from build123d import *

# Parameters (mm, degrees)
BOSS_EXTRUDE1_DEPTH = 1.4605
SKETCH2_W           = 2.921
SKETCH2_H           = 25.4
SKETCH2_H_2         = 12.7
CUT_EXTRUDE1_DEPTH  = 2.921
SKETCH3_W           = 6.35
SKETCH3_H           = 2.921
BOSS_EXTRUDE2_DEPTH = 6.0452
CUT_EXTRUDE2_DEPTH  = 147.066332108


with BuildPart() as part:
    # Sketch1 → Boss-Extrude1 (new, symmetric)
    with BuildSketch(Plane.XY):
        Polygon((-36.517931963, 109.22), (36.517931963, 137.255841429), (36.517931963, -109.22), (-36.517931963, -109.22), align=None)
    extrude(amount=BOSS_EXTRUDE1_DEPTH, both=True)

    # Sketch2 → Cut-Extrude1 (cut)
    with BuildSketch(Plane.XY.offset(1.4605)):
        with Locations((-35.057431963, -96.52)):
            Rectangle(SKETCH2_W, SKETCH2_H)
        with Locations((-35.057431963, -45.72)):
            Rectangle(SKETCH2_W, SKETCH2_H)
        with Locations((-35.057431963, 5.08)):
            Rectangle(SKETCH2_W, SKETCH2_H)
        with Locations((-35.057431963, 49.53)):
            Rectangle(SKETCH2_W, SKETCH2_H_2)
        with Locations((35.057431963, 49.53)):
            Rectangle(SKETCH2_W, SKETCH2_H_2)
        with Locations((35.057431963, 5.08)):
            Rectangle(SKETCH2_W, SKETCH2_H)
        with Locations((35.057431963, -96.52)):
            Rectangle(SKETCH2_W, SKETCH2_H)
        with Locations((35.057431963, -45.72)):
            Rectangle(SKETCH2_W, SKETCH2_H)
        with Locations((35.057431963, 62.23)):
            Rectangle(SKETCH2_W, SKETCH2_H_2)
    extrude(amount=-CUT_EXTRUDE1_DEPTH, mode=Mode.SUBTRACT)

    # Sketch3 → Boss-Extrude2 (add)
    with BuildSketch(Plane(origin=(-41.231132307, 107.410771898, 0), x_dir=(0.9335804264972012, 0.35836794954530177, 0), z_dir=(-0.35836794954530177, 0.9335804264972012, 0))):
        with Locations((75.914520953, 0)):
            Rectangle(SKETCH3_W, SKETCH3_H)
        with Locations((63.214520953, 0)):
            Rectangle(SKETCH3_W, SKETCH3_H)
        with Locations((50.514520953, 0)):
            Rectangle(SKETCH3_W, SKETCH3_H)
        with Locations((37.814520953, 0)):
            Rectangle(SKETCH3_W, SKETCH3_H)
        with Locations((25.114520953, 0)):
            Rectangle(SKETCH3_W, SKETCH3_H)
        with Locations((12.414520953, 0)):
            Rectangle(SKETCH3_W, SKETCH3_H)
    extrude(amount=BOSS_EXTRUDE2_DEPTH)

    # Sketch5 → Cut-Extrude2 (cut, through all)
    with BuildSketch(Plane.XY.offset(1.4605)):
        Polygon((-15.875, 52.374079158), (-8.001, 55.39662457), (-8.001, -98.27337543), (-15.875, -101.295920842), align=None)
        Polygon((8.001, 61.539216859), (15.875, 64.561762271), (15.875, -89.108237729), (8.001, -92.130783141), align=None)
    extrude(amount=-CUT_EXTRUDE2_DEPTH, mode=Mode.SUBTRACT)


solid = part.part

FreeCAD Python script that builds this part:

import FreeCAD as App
import Part
import Sketcher

V = App.Vector
Q = App.Units.Quantity


def add_polygon(sketch, points):
    """Adds a closed chain of lines whose ends are joined by coincident constraints."""
    first, n = sketch.GeometryCount, len(points)
    for a, b in zip(points, points[1:] + points[:1]):
        sketch.addGeometry(Part.LineSegment(App.Vector(*a, 0), App.Vector(*b, 0)), False)
    for i in range(n):
        sketch.addConstraint(Sketcher.Constraint("Coincident", first + i, 2, first + (i + 1) % n, 1))

doc = App.newDocument("Part")
body = doc.addObject("PartDesign::Body", "Body")

# Sketch on XY plane
sketch1 = body.newObject("Sketcher::SketchObject", "Sketch")
sketch1.AttachmentSupport = (doc.getObject("XY_Plane"), [""])
sketch1.MapMode = "FlatFace"
add_polygon(sketch1, [(37, 137), (-37, 109), (-37, -109), (37, -109)])  # lines 0-3
sketch1.addConstraint(Sketcher.Constraint("Vertical", 1))
sketch1.addConstraint(Sketcher.Constraint("Horizontal", 2))
sketch1.addConstraint(Sketcher.Constraint("Vertical", 3))
sketch1.addConstraint(Sketcher.Constraint("Symmetric", 0, 2, 2, 2, -1, 1))
sketch1.addConstraint(Sketcher.Constraint("DistanceY", 1, 2, 1, 1, Q("8.6 in")))
sketch1.addConstraint(Sketcher.Constraint("Angle", 0, Q("-159 deg")))
sketch1.addConstraint(Sketcher.Constraint("Distance", 0, Q("3.08 in")))
pad1 = body.newObject("PartDesign::Pad", "Pad")
pad1.Profile = sketch1
pad1.Length = Q("0.115 in")
pad1.Midplane = True

# Sketch on XY plane
sketch2 = body.newObject("Sketcher::SketchObject", "Sketch001")
sketch2.AttachmentSupport = (doc.getObject("XY_Plane"), [""])
sketch2.MapMode = "FlatFace"
sketch2.AttachmentOffset = App.Placement(V(0, 0, 0.0575 * 25.4), App.Rotation())
add_polygon(sketch2, [(-36.5, -83.8), (-36.5, -109.2), (-33.6, -109.2), (-33.6, -83.8)])  # lines 0-3
add_polygon(sketch2, [(-36.5, -33), (-36.5, -58.4), (-33.6, -58.4), (-33.6, -33)])  # lines 4-7
add_polygon(sketch2, [(-36.5, 17.8), (-36.5, -7.6), (-33.6, -7.6), (-33.6, 17.8)])  # lines 8-11
add_polygon(sketch2, [(-36.5, 55.9), (-36.5, 43.2), (-33.6, 43.2), (-33.6, 55.9)])  # lines 12-15
add_polygon(sketch2, [(33.6, 43.2), (36.5, 43.2), (36.5, 68.6), (33.6, 68.6)])  # lines 16-19
add_polygon(sketch2, [(33.6, 17.8), (33.6, -7.6), (36.5, -7.6), (36.5, 17.8)])  # lines 20-23
add_polygon(sketch2, [(33.6, -83.8), (33.6, -109.2), (36.5, -109.2), (36.5, -83.8)])  # lines 24-27
add_polygon(sketch2, [(33.6, -33), (33.6, -58.4), (36.5, -58.4), (36.5, -33)])  # lines 28-31
sketch2.addConstraint(Sketcher.Constraint("Vertical", 0))
sketch2.addConstraint(Sketcher.Constraint("Horizontal", 1))
sketch2.addConstraint(Sketcher.Constraint("Vertical", 2))
sketch2.addConstraint(Sketcher.Constraint("Horizontal", 3))
sketch2.addConstraint(Sketcher.Constraint("Vertical", 4))
sketch2.addConstraint(Sketcher.Constraint("Horizontal", 5))
sketch2.addConstraint(Sketcher.Constraint("Vertical", 6))
sketch2.addConstraint(Sketcher.Constraint("Horizontal", 7))
sketch2.addConstraint(Sketcher.Constraint("Vertical", 8))
sketch2.addConstraint(Sketcher.Constraint("Horizontal", 9))
sketch2.addConstraint(Sketcher.Constraint("Vertical", 10))
sketch2.addConstraint(Sketcher.Constraint("Horizontal", 11))
sketch2.addConstraint(Sketcher.Constraint("Vertical", 12))
sketch2.addConstraint(Sketcher.Constraint("Horizontal", 13))
sketch2.addConstraint(Sketcher.Constraint("Vertical", 14))
sketch2.addConstraint(Sketcher.Constraint("Horizontal", 15))
sketch2.addConstraint(Sketcher.Constraint("Horizontal", 16))
sketch2.addConstraint(Sketcher.Constraint("Vertical", 17))
sketch2.addConstraint(Sketcher.Constraint("Horizontal", 18))
sketch2.addConstraint(Sketcher.Constraint("Vertical", 19))
sketch2.addConstraint(Sketcher.Constraint("Vertical", 20))
sketch2.addConstraint(Sketcher.Constraint("Horizontal", 21))
sketch2.addConstraint(Sketcher.Constraint("Vertical", 22))
sketch2.addConstraint(Sketcher.Constraint("Horizontal", 23))
sketch2.addConstraint(Sketcher.Constraint("Vertical", 24))
sketch2.addConstraint(Sketcher.Constraint("Horizontal", 25))
sketch2.addConstraint(Sketcher.Constraint("Vertical", 26))
sketch2.addConstraint(Sketcher.Constraint("Horizontal", 27))
sketch2.addConstraint(Sketcher.Constraint("Vertical", 28))
sketch2.addConstraint(Sketcher.Constraint("Horizontal", 29))
sketch2.addConstraint(Sketcher.Constraint("Vertical", 30))
sketch2.addConstraint(Sketcher.Constraint("Horizontal", 31))
sketch2.addConstraint(Sketcher.Constraint("Symmetric", 12, 2, 16, 2, -2))
sketch2.addConstraint(Sketcher.Constraint("Symmetric", 9, 2, 20, 2, -2))
sketch2.addConstraint(Sketcher.Constraint("Symmetric", 11, 2, 22, 2, -2))
sketch2.addConstraint(Sketcher.Constraint("Symmetric", 1, 2, 24, 2, -2))
sketch2.addConstraint(Sketcher.Constraint("Symmetric", 3, 2, 26, 2, -2))
sketch2.addConstraint(Sketcher.Constraint("Symmetric", 5, 2, 28, 2, -2))
sketch2.addConstraint(Sketcher.Constraint("Symmetric", 7, 2, 30, 2, -2))
sketch2.addConstraint(Sketcher.Constraint("Vertical", 3, 2, 4, 2))
sketch2.addConstraint(Sketcher.Constraint("Vertical", 2, 2, 5, 2))
sketch2.addConstraint(Sketcher.Constraint("Vertical", 7, 2, 8, 2))
sketch2.addConstraint(Sketcher.Constraint("Vertical", 6, 2, 9, 2))
sketch2.addConstraint(Sketcher.Constraint("Vertical", 11, 2, 12, 2))
sketch2.addConstraint(Sketcher.Constraint("Vertical", 10, 2, 13, 2))
sketch2.addConstraint(Sketcher.Constraint("Vertical", 19, 2, 20, 2))
sketch2.addConstraint(Sketcher.Constraint("Equal", 2, 4))
sketch2.addConstraint(Sketcher.Constraint("Equal", 6, 8))
sketch2.addConstraint(Sketcher.Constraint("Equal", 10, 17))
sketch2.addConstraint(Sketcher.Constraint("DistanceY", 0, 2, 0, 1, Q("1 in")))
sketch2.addConstraint(Sketcher.Constraint("DistanceY", 12, 2, 12, 1, Q("0.5 in")))
sketch2.addConstraint(Sketcher.Constraint("DistanceY", 3, 2, 4, 2, Q("1 in")))
sketch2.addConstraint(Sketcher.Constraint("DistanceY", 7, 2, 8, 2, Q("1 in")))
sketch2.addConstraint(Sketcher.Constraint("DistanceY", 11, 2, 12, 2, Q("1 in")))
sketch2.addConstraint(Sketcher.Constraint("DistanceY", 0, 2, -1, 1, Q("4.3 in")))
sketch2.addConstraint(Sketcher.Constraint("DistanceX", 1, 1, 1, 2, Q("0.115 in")))
sketch2.addConstraint(Sketcher.Constraint("DistanceX", 0, 2, -1, 1, Q("36.517932 mm")))
pocket1 = body.newObject("PartDesign::Pocket", "Pocket")
pocket1.Profile = sketch2
pocket1.Length = Q("0.115 in")

# Sketch on an angled plane
sketch3 = body.newObject("Sketcher::SketchObject", "Sketch002")
sketch3.Placement = App.Placement(V(-41.231132, 107.410772, 0), App.Rotation(V(0.933580426, 0.35836795, 0), V(0, 0, -0.999999999), V(-0.35836795, 0.933580426, 0), "ZXY"))
add_polygon(sketch3, [(72.7, 1.5), (72.7, -1.5), (79.1, -1.5), (79.1, 1.5)])  # lines 0-3
add_polygon(sketch3, [(60, 1.5), (60, -1.5), (66.4, -1.5), (66.4, 1.5)])  # lines 4-7
add_polygon(sketch3, [(47.3, 1.5), (47.3, -1.5), (53.7, -1.5), (53.7, 1.5)])  # lines 8-11
add_polygon(sketch3, [(34.6, 1.5), (34.6, -1.5), (41, -1.5), (41, 1.5)])  # lines 12-15
add_polygon(sketch3, [(21.9, 1.5), (21.9, -1.5), (28.3, -1.5), (28.3, 1.5)])  # lines 16-19
add_polygon(sketch3, [(9.2, 1.5), (9.2, -1.5), (15.6, -1.5), (15.6, 1.5)])  # lines 20-23
sketch3.addConstraint(Sketcher.Constraint("Vertical", 0))
sketch3.addConstraint(Sketcher.Constraint("Horizontal", 1))
sketch3.addConstraint(Sketcher.Constraint("Vertical", 2))
sketch3.addConstraint(Sketcher.Constraint("Horizontal", 3))
sketch3.addConstraint(Sketcher.Constraint("Vertical", 4))
sketch3.addConstraint(Sketcher.Constraint("Horizontal", 5))
sketch3.addConstraint(Sketcher.Constraint("Vertical", 6))
sketch3.addConstraint(Sketcher.Constraint("Horizontal", 7))
sketch3.addConstraint(Sketcher.Constraint("Vertical", 8))
sketch3.addConstraint(Sketcher.Constraint("Horizontal", 9))
sketch3.addConstraint(Sketcher.Constraint("Vertical", 10))
sketch3.addConstraint(Sketcher.Constraint("Horizontal", 11))
sketch3.addConstraint(Sketcher.Constraint("Vertical", 12))
sketch3.addConstraint(Sketcher.Constraint("Horizontal", 13))
sketch3.addConstraint(Sketcher.Constraint("Vertical", 14))
sketch3.addConstraint(Sketcher.Constraint("Horizontal", 15))
sketch3.addConstraint(Sketcher.Constraint("Vertical", 16))
sketch3.addConstraint(Sketcher.Constraint("Horizontal", 17))
sketch3.addConstraint(Sketcher.Constraint("Vertical", 18))
sketch3.addConstraint(Sketcher.Constraint("Horizontal", 19))
sketch3.addConstraint(Sketcher.Constraint("Vertical", 20))
sketch3.addConstraint(Sketcher.Constraint("Horizontal", 21))
sketch3.addConstraint(Sketcher.Constraint("Vertical", 22))
sketch3.addConstraint(Sketcher.Constraint("Horizontal", 23))
sketch3.addConstraint(Sketcher.Constraint("Horizontal", 1, 2, 4, 2))
sketch3.addConstraint(Sketcher.Constraint("Horizontal", 3, 2, 6, 2))
sketch3.addConstraint(Sketcher.Constraint("Horizontal", 5, 2, 8, 2))
sketch3.addConstraint(Sketcher.Constraint("Horizontal", 7, 2, 10, 2))
sketch3.addConstraint(Sketcher.Constraint("Horizontal", 9, 2, 12, 2))
sketch3.addConstraint(Sketcher.Constraint("Horizontal", 11, 2, 14, 2))
sketch3.addConstraint(Sketcher.Constraint("Horizontal", 13, 2, 16, 2))
sketch3.addConstraint(Sketcher.Constraint("Horizontal", 15, 2, 18, 2))
sketch3.addConstraint(Sketcher.Constraint("Horizontal", 17, 2, 20, 2))
sketch3.addConstraint(Sketcher.Constraint("Horizontal", 19, 2, 22, 2))
sketch3.addConstraint(Sketcher.Constraint("Equal", 3, 5))
sketch3.addConstraint(Sketcher.Constraint("Equal", 7, 9))
sketch3.addConstraint(Sketcher.Constraint("Equal", 11, 13))
sketch3.addConstraint(Sketcher.Constraint("Equal", 15, 17))
sketch3.addConstraint(Sketcher.Constraint("Equal", 19, 21))
sketch3.addConstraint(Sketcher.Constraint("DistanceX", 8, 2, 0, 2, Q("1 in")))
sketch3.addConstraint(Sketcher.Constraint("DistanceX", 12, 2, 4, 2, Q("1 in")))
sketch3.addConstraint(Sketcher.Constraint("DistanceX", 16, 2, 8, 2, Q("1 in")))
sketch3.addConstraint(Sketcher.Constraint("DistanceX", 20, 2, 12, 2, Q("1 in")))
sketch3.addConstraint(Sketcher.Constraint("DistanceX", 1, 1, 1, 2, Q("0.25 in")))
sketch3.addConstraint(Sketcher.Constraint("DistanceX", 4, 2, 0, 2, Q("0.5 in")))
sketch3.addConstraint(Sketcher.Constraint("DistanceY", 0, 2, 0, 1, Q("0.115 in")))
sketch3.addConstraint(Sketcher.Constraint("DistanceY", 0, 2, -1, 1, Q("0.0575 in")))
sketch3.addConstraint(Sketcher.Constraint("DistanceX", -1, 1, 0, 2, Q("72.739521 mm")))
pad2 = body.newObject("PartDesign::Pad", "Pad001")
pad2.Profile = sketch3
pad2.Length = Q("0.238 in")

# Sketch on XY plane
sketch4 = body.newObject("Sketcher::SketchObject", "Sketch003")
sketch4.AttachmentSupport = (doc.getObject("XY_Plane"), [""])
sketch4.MapMode = "FlatFace"
sketch4.AttachmentOffset = App.Placement(V(0, 0, 0.0575 * 25.4), App.Rotation())
add_polygon(sketch4, [(-8, 55), (-16, 52), (-16, -101), (-8, -98)])  # lines 0-3
add_polygon(sketch4, [(16, 65), (8, 62), (8, -92), (16, -89)])  # lines 4-7
sketch4.addConstraint(Sketcher.Constraint("Vertical", 1))
sketch4.addConstraint(Sketcher.Constraint("Vertical", 3))
sketch4.addConstraint(Sketcher.Constraint("Vertical", 5))
sketch4.addConstraint(Sketcher.Constraint("Vertical", 7))
sketch4.addConstraint(Sketcher.Constraint("Parallel", 0, 2))
sketch4.addConstraint(Sketcher.Constraint("Parallel", 2, 4))
sketch4.addConstraint(Sketcher.Constraint("Parallel", 4, 6))
sketch4.addConstraint(Sketcher.Constraint("Equal", 3, 5))
sketch4.addConstraint(Sketcher.Constraint("Equal", 2, 4))
sketch4.addConstraint(Sketcher.Constraint("Angle", 0, Q("-159 deg")))
sketch4.addConstraint(Sketcher.Constraint("DistanceY", 1, 2, 1, 1, Q("6.05 in")))
sketch4.addConstraint(Sketcher.Constraint("DistanceX", 1, 2, 2, 2, Q("0.31 in")))
sketch4.addConstraint(Sketcher.Constraint("DistanceX", 3, 2, 4, 2, Q("0.63 in")))
sketch4.addConstraint(Sketcher.Constraint("DistanceX", 0, 2, -1, 1, Q("0.625 in")))
sketch4.addConstraint(Sketcher.Constraint("DistanceY", -1, 1, 0, 2, Q("52.374079 mm")))
sketch4.addConstraint(Sketcher.Constraint("DistanceY", -1, 1, 4, 2, Q("61.539217 mm")))
pocket2 = body.newObject("PartDesign::Pocket", "Pocket001")
pocket2.Profile = sketch4
pocket2.Type = "ThroughAll"

doc.recompute()
